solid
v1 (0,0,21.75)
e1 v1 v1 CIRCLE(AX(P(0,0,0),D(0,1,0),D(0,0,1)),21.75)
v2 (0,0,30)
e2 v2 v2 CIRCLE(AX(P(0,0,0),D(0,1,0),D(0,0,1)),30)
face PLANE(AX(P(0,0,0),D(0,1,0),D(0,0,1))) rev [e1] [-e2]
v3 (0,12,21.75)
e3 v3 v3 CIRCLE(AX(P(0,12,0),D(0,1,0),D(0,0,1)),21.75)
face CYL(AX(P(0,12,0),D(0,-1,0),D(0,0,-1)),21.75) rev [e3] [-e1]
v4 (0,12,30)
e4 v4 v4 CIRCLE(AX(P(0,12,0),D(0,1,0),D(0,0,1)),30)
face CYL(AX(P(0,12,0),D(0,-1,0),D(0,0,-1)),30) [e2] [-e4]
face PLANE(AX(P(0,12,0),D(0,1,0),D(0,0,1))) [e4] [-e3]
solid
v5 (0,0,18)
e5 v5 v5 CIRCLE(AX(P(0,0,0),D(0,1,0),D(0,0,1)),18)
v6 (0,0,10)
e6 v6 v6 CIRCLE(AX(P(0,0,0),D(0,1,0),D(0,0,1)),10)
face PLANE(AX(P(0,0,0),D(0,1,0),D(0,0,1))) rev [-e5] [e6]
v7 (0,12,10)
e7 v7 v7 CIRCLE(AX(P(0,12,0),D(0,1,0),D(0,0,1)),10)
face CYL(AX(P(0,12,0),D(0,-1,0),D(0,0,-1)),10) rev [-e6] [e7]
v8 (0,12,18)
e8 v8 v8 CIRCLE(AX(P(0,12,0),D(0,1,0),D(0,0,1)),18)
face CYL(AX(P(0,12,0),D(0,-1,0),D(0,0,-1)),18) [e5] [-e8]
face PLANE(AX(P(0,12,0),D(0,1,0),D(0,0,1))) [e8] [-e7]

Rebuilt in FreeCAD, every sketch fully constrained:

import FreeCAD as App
import Part
import Sketcher

doc = App.newDocument("Part")
body = doc.addObject("PartDesign::Body", "Body")

# Sketch on XZ plane
sketch1 = body.newObject("Sketcher::SketchObject", "Sketch")
sketch1.AttachmentSupport = (doc.getObject("XZ_Plane"), [""])
sketch1.MapMode = "FlatFace"
sketch1.addGeometry(Part.Circle(App.Vector(0, 0, 0), App.Vector(0, 0, 1), 18), False)
sketch1.addGeometry(Part.Circle(App.Vector(0, 0, 0), App.Vector(0, 0, 1), 10), False)
sketch1.addConstraint(Sketcher.Constraint("Coincident", 0, 3, -1, 1))
sketch1.addConstraint(Sketcher.Constraint("Coincident", 1, 3, -1, 1))
sketch1.addConstraint(Sketcher.Constraint("Diameter", 0, 36.0))
sketch1.addConstraint(Sketcher.Constraint("Diameter", 1, 20.0))
pad1 = body.newObject("PartDesign::Pad", "Pad")
pad1.Profile = sketch1
pad1.Length = 12
pad1.Reversed = True
body2 = doc.addObject("PartDesign::Body", "Body001")

# Sketch on XZ plane
sketch2 = body2.newObject("Sketcher::SketchObject", "Sketch001")
sketch2.AttachmentSupport = (doc.getObject("XZ_Plane001"), [""])
sketch2.MapMode = "FlatFace"
sketch2.addGeometry(Part.Circle(App.Vector(0, 0, 0), App.Vector(0, 0, 1), 30), False)
sketch2.addGeometry(Part.Circle(App.Vector(0, 0, 0), App.Vector(0, 0, 1), 21.75), False)
sketch2.addConstraint(Sketcher.Constraint("Coincident", 0, 3, -1, 1))
sketch2.addConstraint(Sketcher.Constraint("Coincident", 1, 3, -1, 1))
sketch2.addConstraint(Sketcher.Constraint("Diameter", 0, 60.0))
sketch2.addConstraint(Sketcher.Constraint("Diameter", 1, 43.5))
pad2 = body2.newObject("PartDesign::Pad", "Pad001")
pad2.Profile = sketch2
pad2.Length = 12
pad2.Reversed = True

doc.recompute()
